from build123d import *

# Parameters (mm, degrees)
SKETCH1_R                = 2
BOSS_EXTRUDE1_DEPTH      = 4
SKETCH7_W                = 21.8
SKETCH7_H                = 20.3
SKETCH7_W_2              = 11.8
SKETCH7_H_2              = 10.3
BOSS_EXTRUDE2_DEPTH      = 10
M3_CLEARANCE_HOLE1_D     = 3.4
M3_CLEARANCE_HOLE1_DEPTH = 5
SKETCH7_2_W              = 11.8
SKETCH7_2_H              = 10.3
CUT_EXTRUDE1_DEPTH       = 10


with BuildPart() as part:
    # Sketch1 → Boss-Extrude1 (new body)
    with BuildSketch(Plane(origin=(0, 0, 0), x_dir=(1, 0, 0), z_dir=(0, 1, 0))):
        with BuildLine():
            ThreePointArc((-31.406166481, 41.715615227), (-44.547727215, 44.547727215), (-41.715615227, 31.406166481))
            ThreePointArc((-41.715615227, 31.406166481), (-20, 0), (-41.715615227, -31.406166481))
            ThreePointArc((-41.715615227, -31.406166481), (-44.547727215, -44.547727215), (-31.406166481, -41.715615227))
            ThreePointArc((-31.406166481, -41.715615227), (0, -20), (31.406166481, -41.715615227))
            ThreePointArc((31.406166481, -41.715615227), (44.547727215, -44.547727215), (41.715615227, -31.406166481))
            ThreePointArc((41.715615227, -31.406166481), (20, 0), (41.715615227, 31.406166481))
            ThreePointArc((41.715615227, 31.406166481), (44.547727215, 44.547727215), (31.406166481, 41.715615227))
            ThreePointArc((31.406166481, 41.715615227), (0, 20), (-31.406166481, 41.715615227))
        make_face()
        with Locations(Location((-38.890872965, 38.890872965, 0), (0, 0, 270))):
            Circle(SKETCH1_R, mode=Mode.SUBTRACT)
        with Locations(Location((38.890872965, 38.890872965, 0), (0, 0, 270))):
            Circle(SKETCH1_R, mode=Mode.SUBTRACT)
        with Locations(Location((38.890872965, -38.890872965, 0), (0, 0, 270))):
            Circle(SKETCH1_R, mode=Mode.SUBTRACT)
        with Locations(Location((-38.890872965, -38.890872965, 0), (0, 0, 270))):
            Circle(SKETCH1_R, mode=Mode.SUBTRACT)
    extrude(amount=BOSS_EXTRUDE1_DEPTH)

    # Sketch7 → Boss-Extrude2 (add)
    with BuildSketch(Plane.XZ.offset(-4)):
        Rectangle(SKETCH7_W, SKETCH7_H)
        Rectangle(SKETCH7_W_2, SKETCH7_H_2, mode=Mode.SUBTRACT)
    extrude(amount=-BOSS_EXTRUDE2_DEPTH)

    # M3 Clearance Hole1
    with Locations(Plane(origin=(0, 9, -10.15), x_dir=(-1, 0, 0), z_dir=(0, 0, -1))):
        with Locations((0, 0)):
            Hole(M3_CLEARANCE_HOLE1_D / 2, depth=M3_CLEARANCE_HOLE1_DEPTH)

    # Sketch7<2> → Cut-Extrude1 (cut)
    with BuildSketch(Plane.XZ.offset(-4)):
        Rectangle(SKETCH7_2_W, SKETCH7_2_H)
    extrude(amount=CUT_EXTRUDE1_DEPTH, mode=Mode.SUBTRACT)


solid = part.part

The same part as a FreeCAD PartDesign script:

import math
import FreeCAD as App
import Part
import Sketcher


def add_polygon(sketch, points):
    """Adds a closed chain of lines whose ends are joined by coincident constraints."""
    first, n = sketch.GeometryCount, len(points)
    for a, b in zip(points, points[1:] + points[:1]):
        sketch.addGeometry(Part.LineSegment(App.Vector(*a, 0), App.Vector(*b, 0)), False)
    for i in range(n):
        sketch.addConstraint(Sketcher.Constraint("Coincident", first + i, 2, first + (i + 1) % n, 1))

doc = App.newDocument("Part")
body = doc.addObject("PartDesign::Body", "Body")

# Sketch on XZ plane
sketch1 = body.newObject("Sketcher::SketchObject", "Sketch")
sketch1.AttachmentSupport = (doc.getObject("XZ_Plane"), [""])
sketch1.MapMode = "FlatFace"
sketch1.addGeometry([
    Part.ArcOfCircle(Part.Circle(App.Vector(-38.9, -38.9, 0), App.Vector(0, 0, 1), 8), math.radians(111), math.radians(339)),  # 0
    Part.ArcOfCircle(Part.Circle(App.Vector(-53.6, 0, 0), App.Vector(0, 0, 1), 33.6), math.radians(-69), math.radians(69)),  # 1
    Part.ArcOfCircle(Part.Circle(App.Vector(-38.9, 38.9, 0), App.Vector(0, 0, 1), 8), math.radians(21), math.radians(249)),  # 2
    Part.ArcOfCircle(Part.Circle(App.Vector(0, 53.6, 0), App.Vector(0, 0, 1), 33.6), math.radians(-159), math.radians(-21)),  # 3
    Part.ArcOfCircle(Part.Circle(App.Vector(38.9, 38.9, 0), App.Vector(0, 0, 1), 8), math.radians(-69), math.radians(159)),  # 4
    Part.ArcOfCircle(Part.Circle(App.Vector(53.6, 0, 0), App.Vector(0, 0, 1), 33.6), math.radians(111), math.radians(249)),  # 5
    Part.ArcOfCircle(Part.Circle(App.Vector(38.9, -38.9, 0), App.Vector(0, 0, 1), 8), math.radians(-159), math.radians(69)),  # 6
    Part.ArcOfCircle(Part.Circle(App.Vector(0, -53.6, 0), App.Vector(0, 0, 1), 33.6), math.radians(21), math.radians(159)),  # 7
    Part.Circle(App.Vector(-38.9, 38.9, 0), App.Vector(0, 0, 1), 2),  # 8
    Part.Circle(App.Vector(38.9, 38.9, 0), App.Vector(0, 0, 1), 2),  # 9
    Part.Circle(App.Vector(-38.9, -38.9, 0), App.Vector(0, 0, 1), 2),  # 10
    Part.Circle(App.Vector(38.9, -38.9, 0), App.Vector(0, 0, 1), 2),  # 11
], False)
sketch1.addConstraint([
    Sketcher.Constraint("Tangent", 0, 1, 1, 1),
    Sketcher.Constraint("Tangent", 1, 2, 2, 2),
    Sketcher.Constraint("Tangent", 2, 1, 3, 1),
    Sketcher.Constraint("Tangent", 3, 2, 4, 2),
    Sketcher.Constraint("Tangent", 4, 1, 5, 1),
    Sketcher.Constraint("Tangent", 5, 2, 6, 2),
    Sketcher.Constraint("Tangent", 6, 1, 7, 1),
    Sketcher.Constraint("Tangent", 7, 2, 0, 2),
    Sketcher.Constraint("Coincident", 8, 3, 2, 3),
    Sketcher.Constraint("Coincident", 9, 3, 4, 3),
    Sketcher.Constraint("Coincident", 10, 3, 0, 3),
    Sketcher.Constraint("Coincident", 11, 3, 6, 3),
    Sketcher.Constraint("Equal", 0, 2),
    Sketcher.Constraint("Equal", 1, 3),
    Sketcher.Constraint("Equal", 2, 4),
    Sketcher.Constraint("Equal", 3, 5),
    Sketcher.Constraint("Equal", 4, 6),
    Sketcher.Constraint("Equal", 5, 7),
    Sketcher.Constraint("Equal", 8, 9),
    Sketcher.Constraint("Equal", 9, 10),
    Sketcher.Constraint("Equal", 10, 11),
    Sketcher.Constraint("Symmetric", 0, 3, 4, 3, -1, 1),
    Sketcher.Constraint("Symmetric", 2, 3, 6, 3, -1, 1),
    Sketcher.Constraint("Symmetric", 2, 3, 4, 3, -2),
    Sketcher.Constraint("Diameter", 8, 4.0),
    Sketcher.Constraint("Radius", 0, 8.0),
    Sketcher.Constraint("Radius", 1, 33.568361),
    Sketcher.Constraint("DistanceX", 1, 3, -1, 1, 53.568361),
    Sketcher.Constraint("DistanceY", -1, 1, 3, 3, 53.568361),
])
pad1 = body.newObject("PartDesign::Pad", "Pad")
pad1.Profile = sketch1
pad1.Length = 4
pad1.Reversed = True

# Sketch on XZ plane
sketch2 = body.newObject("Sketcher::SketchObject", "Sketch001")
sketch2.AttachmentSupport = (doc.getObject("XZ_Plane"), [""])
sketch2.MapMode = "FlatFace"
sketch2.AttachmentOffset = App.Placement(App.Vector(0, 0, -4), App.Rotation())
add_polygon(sketch2, [(-11, 10), (-11, -10), (11, -10), (11, 10)])  # lines 0-3
add_polygon(sketch2, [(6, -5), (-6, -5), (-6, 5), (6, 5)])  # lines 4-7
sketch2.addConstraint([
    Sketcher.Constraint("Vertical", 0),
    Sketcher.Constraint("Horizontal", 1),
    Sketcher.Constraint("Vertical", 2),
    Sketcher.Constraint("Horizontal", 3),
    Sketcher.Constraint("Horizontal", 4),
    Sketcher.Constraint("Vertical", 5),
    Sketcher.Constraint("Horizontal", 6),
    Sketcher.Constraint("Vertical", 7),
    Sketcher.Constraint("Symmetric", 0, 2, 2, 2, -1, 1),
    Sketcher.Constraint("Symmetric", 4, 2, 6, 2, -1, 1),
    Sketcher.Constraint("DistanceX", 1, 1, 1, 2, 21.8),
    Sketcher.Constraint("DistanceX", 4, 2, 4, 1, 11.8),
    Sketcher.Constraint("DistanceY", 0, 2, 0, 1, 20.3),
    Sketcher.Constraint("DistanceY", 5, 1, 5, 2, 10.3),
])
pad2 = body.newObject("PartDesign::Pad", "Pad001")
pad2.Profile = sketch2
pad2.Length = 10
pad2.Reversed = True

# Sketch on XY plane
sketch3 = body.newObject("Sketcher::SketchObject", "Sketch002")
sketch3.AttachmentSupport = (doc.getObject("XY_Plane"), [""])
sketch3.MapMode = "FlatFace"
sketch3.AttachmentOffset = App.Placement(App.Vector(0, 0, -10.15), App.Rotation())
sketch3.addGeometry(Part.Circle(App.Vector(0, 9, 0), App.Vector(0, 0, 1), 1.7), False)
sketch3.addConstraint([
    Sketcher.Constraint("PointOnObject", 0, 3, -2),
    Sketcher.Constraint("Diameter", 0, 3.4),
    Sketcher.Constraint("DistanceY", -1, 1, 0, 3, 9.0),
])
doc.recompute()
hole = body.newObject("PartDesign::Hole", "Hole")
hole.Profile = sketch3
hole.ThreadType = "None"
hole.Diameter = 3.4
hole.DepthType = "Dimension"
hole.Depth = 5
hole.DrillPoint = "Flat"
hole.Reversed = True

# Sketch on XZ plane
sketch4 = body.newObject("Sketcher::SketchObject", "Sketch003")
sketch4.AttachmentSupport = (doc.getObject("XZ_Plane"), [""])
sketch4.MapMode = "FlatFace"
sketch4.AttachmentOffset = App.Placement(App.Vector(0, 0, -4), App.Rotation())
add_polygon(sketch4, [(-6, 5), (-6, -5), (6, -5), (6, 5)])  # lines 0-3
sketch4.addConstraint([
    Sketcher.Constraint("Vertical", 0),
    Sketcher.Constraint("Horizontal", 1),
    Sketcher.Constraint("Vertical", 2),
    Sketcher.Constraint("Horizontal", 3),
    Sketcher.Constraint("Symmetric", 0, 2, 2, 2, -1, 1),
    Sketcher.Constraint("DistanceX", 1, 1, 1, 2, 11.8),
    Sketcher.Constraint("DistanceY", 0, 2, 0, 1, 10.3),
])
pocket1 = body.newObject("PartDesign::Pocket", "Pocket")
pocket1.Profile = sketch4
pocket1.Length = 10
pocket1.Reversed = True

doc.recompute()
